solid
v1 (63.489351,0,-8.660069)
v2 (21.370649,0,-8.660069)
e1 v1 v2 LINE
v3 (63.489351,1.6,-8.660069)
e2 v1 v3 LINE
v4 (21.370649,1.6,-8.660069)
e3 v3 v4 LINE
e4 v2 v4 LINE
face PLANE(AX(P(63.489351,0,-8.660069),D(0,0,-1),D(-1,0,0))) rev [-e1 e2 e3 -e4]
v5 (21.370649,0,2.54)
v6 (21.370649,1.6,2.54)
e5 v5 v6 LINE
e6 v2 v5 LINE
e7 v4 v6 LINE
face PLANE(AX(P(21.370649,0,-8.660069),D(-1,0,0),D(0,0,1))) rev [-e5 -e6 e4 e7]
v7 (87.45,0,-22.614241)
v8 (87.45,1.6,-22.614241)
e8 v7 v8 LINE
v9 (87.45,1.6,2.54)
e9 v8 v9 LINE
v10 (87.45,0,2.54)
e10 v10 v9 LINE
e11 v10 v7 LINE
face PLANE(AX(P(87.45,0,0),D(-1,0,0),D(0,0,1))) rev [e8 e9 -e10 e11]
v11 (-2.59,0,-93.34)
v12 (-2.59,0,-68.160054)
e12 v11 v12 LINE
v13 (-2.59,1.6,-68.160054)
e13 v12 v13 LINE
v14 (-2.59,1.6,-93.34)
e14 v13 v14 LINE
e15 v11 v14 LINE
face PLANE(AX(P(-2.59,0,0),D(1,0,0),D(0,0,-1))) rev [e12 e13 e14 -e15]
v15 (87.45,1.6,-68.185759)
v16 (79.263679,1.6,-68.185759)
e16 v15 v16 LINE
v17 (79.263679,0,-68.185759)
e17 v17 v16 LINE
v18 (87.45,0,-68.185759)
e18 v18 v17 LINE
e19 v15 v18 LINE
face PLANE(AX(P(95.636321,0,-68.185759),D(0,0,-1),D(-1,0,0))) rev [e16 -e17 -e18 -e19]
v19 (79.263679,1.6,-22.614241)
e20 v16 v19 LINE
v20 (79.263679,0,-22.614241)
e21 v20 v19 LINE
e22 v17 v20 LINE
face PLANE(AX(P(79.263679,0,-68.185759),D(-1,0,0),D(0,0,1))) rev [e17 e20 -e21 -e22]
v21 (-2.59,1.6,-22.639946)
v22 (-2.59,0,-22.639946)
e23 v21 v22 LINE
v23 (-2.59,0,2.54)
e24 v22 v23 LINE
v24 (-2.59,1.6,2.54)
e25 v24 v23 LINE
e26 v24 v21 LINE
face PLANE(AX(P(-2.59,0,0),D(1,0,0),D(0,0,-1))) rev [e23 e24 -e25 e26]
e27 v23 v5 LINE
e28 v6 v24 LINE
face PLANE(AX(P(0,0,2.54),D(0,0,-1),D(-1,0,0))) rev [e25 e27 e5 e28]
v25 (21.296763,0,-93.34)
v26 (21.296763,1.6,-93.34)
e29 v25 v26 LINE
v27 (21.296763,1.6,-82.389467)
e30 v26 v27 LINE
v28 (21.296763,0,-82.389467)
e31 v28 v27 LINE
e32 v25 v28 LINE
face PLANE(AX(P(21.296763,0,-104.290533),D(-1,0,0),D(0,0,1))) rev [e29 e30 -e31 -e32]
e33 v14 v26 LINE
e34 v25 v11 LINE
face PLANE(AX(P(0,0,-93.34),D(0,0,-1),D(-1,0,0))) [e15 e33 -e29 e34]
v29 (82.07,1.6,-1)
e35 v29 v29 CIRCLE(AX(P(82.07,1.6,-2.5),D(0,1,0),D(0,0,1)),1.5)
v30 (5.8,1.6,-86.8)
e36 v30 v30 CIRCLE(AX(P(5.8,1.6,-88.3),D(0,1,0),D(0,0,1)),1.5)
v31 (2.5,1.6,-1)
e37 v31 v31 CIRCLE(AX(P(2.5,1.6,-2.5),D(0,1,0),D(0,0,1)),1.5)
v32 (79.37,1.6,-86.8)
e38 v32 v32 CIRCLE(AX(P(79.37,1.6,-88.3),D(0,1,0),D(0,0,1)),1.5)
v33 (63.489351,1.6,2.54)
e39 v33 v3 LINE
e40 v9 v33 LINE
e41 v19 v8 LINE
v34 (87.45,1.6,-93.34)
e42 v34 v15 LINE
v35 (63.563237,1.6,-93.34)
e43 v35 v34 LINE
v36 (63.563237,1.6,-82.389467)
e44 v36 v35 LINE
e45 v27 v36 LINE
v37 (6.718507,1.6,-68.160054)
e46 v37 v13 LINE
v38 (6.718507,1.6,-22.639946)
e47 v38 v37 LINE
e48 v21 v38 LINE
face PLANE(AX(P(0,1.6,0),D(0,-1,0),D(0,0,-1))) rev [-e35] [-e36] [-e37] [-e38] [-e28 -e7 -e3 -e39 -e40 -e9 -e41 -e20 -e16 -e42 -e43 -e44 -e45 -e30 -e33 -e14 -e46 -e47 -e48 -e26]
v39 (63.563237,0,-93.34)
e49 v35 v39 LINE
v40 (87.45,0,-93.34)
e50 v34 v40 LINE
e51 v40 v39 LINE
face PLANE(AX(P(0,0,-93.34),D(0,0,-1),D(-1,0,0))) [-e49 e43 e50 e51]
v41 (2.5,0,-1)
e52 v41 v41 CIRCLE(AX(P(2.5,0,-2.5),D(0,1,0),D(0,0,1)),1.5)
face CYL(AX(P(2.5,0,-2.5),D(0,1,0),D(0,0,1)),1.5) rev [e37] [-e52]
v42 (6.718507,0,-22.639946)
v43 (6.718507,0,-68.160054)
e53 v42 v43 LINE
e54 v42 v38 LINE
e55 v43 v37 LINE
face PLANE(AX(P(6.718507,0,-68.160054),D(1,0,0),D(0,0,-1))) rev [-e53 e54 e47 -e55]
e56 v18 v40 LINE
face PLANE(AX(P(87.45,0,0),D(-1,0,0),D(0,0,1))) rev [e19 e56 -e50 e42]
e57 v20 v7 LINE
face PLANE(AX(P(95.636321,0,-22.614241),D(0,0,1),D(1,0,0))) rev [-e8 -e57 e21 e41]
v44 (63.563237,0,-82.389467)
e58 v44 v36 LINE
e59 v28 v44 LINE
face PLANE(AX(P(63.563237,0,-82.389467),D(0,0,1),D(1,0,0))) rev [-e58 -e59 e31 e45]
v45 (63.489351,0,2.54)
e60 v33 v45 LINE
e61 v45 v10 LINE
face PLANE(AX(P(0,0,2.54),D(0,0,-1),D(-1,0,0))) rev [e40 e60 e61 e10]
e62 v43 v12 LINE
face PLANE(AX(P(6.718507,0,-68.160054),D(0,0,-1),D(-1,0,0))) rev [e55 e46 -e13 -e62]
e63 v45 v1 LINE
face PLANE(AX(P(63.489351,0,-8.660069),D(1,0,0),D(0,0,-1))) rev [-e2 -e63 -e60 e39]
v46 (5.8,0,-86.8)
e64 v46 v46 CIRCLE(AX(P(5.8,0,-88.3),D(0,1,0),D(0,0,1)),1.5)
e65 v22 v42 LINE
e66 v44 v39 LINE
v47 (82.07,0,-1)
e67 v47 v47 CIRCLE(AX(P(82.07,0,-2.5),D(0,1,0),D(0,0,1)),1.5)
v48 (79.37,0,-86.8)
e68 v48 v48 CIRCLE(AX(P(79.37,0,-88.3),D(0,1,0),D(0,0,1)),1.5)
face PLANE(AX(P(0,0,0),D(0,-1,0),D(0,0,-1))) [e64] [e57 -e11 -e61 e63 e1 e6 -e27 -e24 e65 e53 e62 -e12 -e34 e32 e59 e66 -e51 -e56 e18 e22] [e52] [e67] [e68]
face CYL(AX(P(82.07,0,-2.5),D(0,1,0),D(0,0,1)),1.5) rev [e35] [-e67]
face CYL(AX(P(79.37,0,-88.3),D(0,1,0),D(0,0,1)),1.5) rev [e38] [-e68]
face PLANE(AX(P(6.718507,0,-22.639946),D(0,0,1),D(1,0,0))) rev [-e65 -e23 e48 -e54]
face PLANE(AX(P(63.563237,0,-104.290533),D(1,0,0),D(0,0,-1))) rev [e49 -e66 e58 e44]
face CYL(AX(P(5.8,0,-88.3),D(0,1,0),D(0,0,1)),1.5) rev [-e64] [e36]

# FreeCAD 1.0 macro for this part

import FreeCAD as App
import Part
import Sketcher
from FreeCAD import Vector


def add_polygon(sketch, points):
    """Adds a closed chain of lines whose ends are joined by coincident constraints."""
    first, n = sketch.GeometryCount, len(points)
    for a, b in zip(points, points[1:] + points[:1]):
        sketch.addGeometry(Part.LineSegment(App.Vector(*a, 0), App.Vector(*b, 0)), False)
    for i in range(n):
        sketch.addConstraint(Sketcher.Constraint("Coincident", first + i, 2, first + (i + 1) % n, 1))

doc = App.newDocument("Part")
body = doc.addObject("PartDesign::Body", "Body")

sketch1 = body.newObject("Sketcher::SketchObject", "Sketch")
sketch1.AttachmentSupport = (doc.getObject("XZ_Plane"), [""])
sketch1.MapMode = "FlatFace"
add_polygon(sketch1, [(0, -90.8), (0, 0), (84.57, 0), (84.57, -90.8)])
sketch1.addConstraint([
    Sketcher.Constraint("Vertical", 0),
    Sketcher.Constraint("Horizontal", 1),
    Sketcher.Constraint("Vertical", 2),
    Sketcher.Constraint("Horizontal", 3),
    Sketcher.Constraint("Coincident", 0, 2, -1, 1),
    Sketcher.Constraint("DistanceY", 0, 1, 0, 2, 90.8),
    Sketcher.Constraint("DistanceX", 1, 1, 1, 2, 84.57),
])
pad1 = body.newObject("PartDesign::Pad", "Pad")
pad1.Profile = sketch1
pad1.Length = 1.6
pad1.Reversed = True

sketch2 = body.newObject("Sketcher::SketchObject", "Sketch001")
sketch2.AttachmentSupport = (doc.getObject("XZ_Plane"), [""])
sketch2.MapMode = "FlatFace"
sketch2.AttachmentOffset = App.Placement(Vector(0, 0, -1.6), App.Rotation())
sketch2.addGeometry([
    Part.Circle(Vector(2.5, -2.5, 0), Vector(0, 0, 1), 1.5),
    Part.Circle(Vector(82.07, -2.5, 0), Vector(0, 0, 1), 1.5),
    Part.Circle(Vector(5.8, -88.3, 0), Vector(0, 0, 1), 1.5),
    Part.Circle(Vector(79.37, -88.3, 0), Vector(0, 0, 1), 1.5),
], False)
sketch2.addConstraint([
    Sketcher.Constraint("Equal", 0, 1),
    Sketcher.Constraint("Equal", 1, 2),
    Sketcher.Constraint("Equal", 2, 3),
    Sketcher.Constraint("Horizontal", 0, 3, 1, 3),
    Sketcher.Constraint("Horizontal", 2, 3, 3, 3),
    Sketcher.Constraint("Diameter", 0, 3.0),
    Sketcher.Constraint("DistanceX", -1, 1, 0, 3, 2.5),
    Sketcher.Constraint("DistanceY", 0, 3, -1, 1, 2.5),
    Sketcher.Constraint("DistanceX", -1, 1, 2, 3, 5.8),
    Sketcher.Constraint("DistanceY", 2, 3, -1, 1, 88.3),
    Sketcher.Constraint("DistanceX", 3, 3, 1, 3, 2.7),
    Sketcher.Constraint("DistanceX", -1, 1, 1, 3, 82.07),
])
pocket1 = body.newObject("PartDesign::Pocket", "Pocket")
pocket1.Profile = sketch2
pocket1.Type = "ThroughAll"
pocket1.Reversed = True

sketch3 = body.newObject("Sketcher::SketchObject", "Sketch002")
sketch3.AttachmentSupport = (doc.getObject("YZ_Plane"), [""])
sketch3.MapMode = "FlatFace"
sketch3.AttachmentOffset = App.Placement(Vector(0, 0, 84.57), App.Rotation())
add_polygon(sketch3, [(1.6, 0), (0, 0), (0, -90.8), (1.6, -90.8)])
sketch3.addConstraint([
    Sketcher.Constraint("Horizontal", 0),
    Sketcher.Constraint("Vertical", 1),
    Sketcher.Constraint("Horizontal", 2),
    Sketcher.Constraint("Vertical", 3),
    Sketcher.Constraint("Coincident", 0, 2, -1, 1),
    Sketcher.Constraint("DistanceX", 0, 2, 0, 1, 1.6),
    Sketcher.Constraint("DistanceY", 1, 2, 1, 1, 90.8),
])
pad2 = body.newObject("PartDesign::Pad", "Pad001")
pad2.Profile = sketch3
pad2.Length = 2.88

sketch4 = body.newObject("Sketcher::SketchObject", "Sketch003")
sketch4.AttachmentSupport = (doc.getObject("YZ_Plane"), [""])
sketch4.MapMode = "FlatFace"
add_polygon(sketch4, [(1.6, -90.8), (0, -90.8), (0, 0), (1.6, 0)])
sketch4.addConstraint([
    Sketcher.Constraint("Horizontal", 0),
    Sketcher.Constraint("Vertical", 1),
    Sketcher.Constraint("Horizontal", 2),
    Sketcher.Constraint("Vertical", 3),
    Sketcher.Constraint("Coincident", 1, 2, -1, 1),
    Sketcher.Constraint("DistanceX", 0, 2, 0, 1, 1.6),
    Sketcher.Constraint("DistanceY", 1, 1, 1, 2, 90.8),
])
pad3 = body.newObject("PartDesign::Pad", "Pad002")
pad3.Profile = sketch4
pad3.Length = 2.59
pad3.Reversed = True

sketch5 = body.newObject("Sketcher::SketchObject", "Sketch004")
sketch5.AttachmentSupport = (doc.getObject("XY_Plane"), [""])
sketch5.MapMode = "FlatFace"
sketch5.AttachmentOffset = App.Placement(Vector(0, 0, -90.8), App.Rotation())
add_polygon(sketch5, [(87.45, 1.6), (87.45, 0), (-2.59, 0), (-2.59, 1.6)])
sketch5.addConstraint([
    Sketcher.Constraint("Vertical", 0),
    Sketcher.Constraint("Horizontal", 1),
    Sketcher.Constraint("Vertical", 2),
    Sketcher.Constraint("Horizontal", 3),
    Sketcher.Constraint("PointOnObject", 0, 2, -1),
    Sketcher.Constraint("DistanceY", 0, 2, 0, 1, 1.6),
    Sketcher.Constraint("DistanceX", 1, 2, 1, 1, 90.04),
    Sketcher.Constraint("DistanceX", -1, 1, 0, 2, 87.45),
])
pad4 = body.newObject("PartDesign::Pad", "Pad003")
pad4.Profile = sketch5
pad4.Length = 2.54
pad4.Reversed = True

sketch6 = body.newObject("Sketcher::SketchObject", "Sketch005")
sketch6.AttachmentSupport = (doc.getObject("XY_Plane"), [""])
sketch6.MapMode = "FlatFace"
add_polygon(sketch6, [(-2.59, 1.6), (-2.59, 0), (87.45, 0), (87.45, 1.6)])
sketch6.addConstraint([
    Sketcher.Constraint("Vertical", 0),
    Sketcher.Constraint("Horizontal", 1),
    Sketcher.Constraint("Vertical", 2),
    Sketcher.Constraint("Horizontal", 3),
    Sketcher.Constraint("PointOnObject", 0, 2, -1),
    Sketcher.Constraint("DistanceY", 0, 2, 0, 1, 1.6),
    Sketcher.Constraint("DistanceX", 1, 1, 1, 2, 90.04),
    Sketcher.Constraint("DistanceX", 0, 2, -1, 1, 2.59),
])
pad5 = body.newObject("PartDesign::Pad", "Pad004")
pad5.Profile = sketch6
pad5.Length = 2.54

sketch7 = body.newObject("Sketcher::SketchObject", "Sketch006")
sketch7.AttachmentSupport = (doc.getObject("XZ_Plane"), [""])
sketch7.MapMode = "FlatFace"
sketch7.AttachmentOffset = App.Placement(Vector(0, 0, -1.6), App.Rotation())
add_polygon(sketch7, [(79.263679, -68.185759), (79.263679, -22.614241), (95.636321, -22.614241), (95.636321, -68.185759)])
add_polygon(sketch7, [(21.296763, -104.290533), (21.296763, -82.389467), (63.563237, -82.389467), (63.563237, -104.290533)])
add_polygon(sketch7, [(-11.898507, -68.160054), (-11.898507, -22.639946), (6.718507, -22.639946), (6.718507, -68.160054)])
add_polygon(sketch7, [(21.370649, -8.660069), (21.370649, 13.740069), (63.489351, 13.740069), (63.489351, -8.660069)])
sketch7.addConstraint([
    Sketcher.Constraint("Vertical", 0),
    Sketcher.Constraint("Horizontal", 1),
    Sketcher.Constraint("Vertical", 2),
    Sketcher.Constraint("Horizontal", 3),
    Sketcher.Constraint("Vertical", 4),
    Sketcher.Constraint("Horizontal", 5),
    Sketcher.Constraint("Vertical", 6),
    Sketcher.Constraint("Horizontal", 7),
    Sketcher.Constraint("Vertical", 8),
    Sketcher.Constraint("Horizontal", 9),
    Sketcher.Constraint("Vertical", 10),
    Sketcher.Constraint("Horizontal", 11),
    Sketcher.Constraint("Vertical", 12),
    Sketcher.Constraint("Horizontal", 13),
    Sketcher.Constraint("Vertical", 14),
    Sketcher.Constraint("Horizontal", 15),
    Sketcher.Constraint("DistanceY", 8, 1, 8, 2, 45.520108),
    Sketcher.Constraint("DistanceY", 12, 1, 12, 2, 22.400139),
    Sketcher.Constraint("DistanceX", 1, 1, 1, 2, 16.372643),
    Sketcher.Constraint("DistanceX", 5, 1, 5, 2, 42.266473),
    Sketcher.Constraint("DistanceX", 9, 1, 9, 2, 18.617014),
    Sketcher.Constraint("DistanceX", 13, 1, 13, 2, 42.118702),
    Sketcher.Constraint("DistanceY", 0, 1, 0, 2, 45.571517),
    Sketcher.Constraint("DistanceY", 4, 1, 4, 2, 21.901066),
    Sketcher.Constraint("DistanceX", -1, 1, 0, 2, 79.263679),
    Sketcher.Constraint("DistanceY", 0, 2, -1, 1, 22.614241),
    Sketcher.Constraint("DistanceX", -1, 1, 12, 2, 21.370649),
    Sketcher.Constraint("DistanceY", -1, 1, 12, 2, 13.740069),
    Sketcher.Constraint("DistanceY", 4, 2, 3, 2, 14.203709),
    Sketcher.Constraint("DistanceX", 4, 2, 2, 2, 74.339558),
    Sketcher.Constraint("DistanceX", 8, 2, 4, 2, 33.19527),
    Sketcher.Constraint("DistanceY", 4, 2, 8, 2, 59.749521),
])
pocket2 = body.newObject("PartDesign::Pocket", "Pocket001")
pocket2.Profile = sketch7
pocket2.Type = "ThroughAll"
pocket2.Reversed = True

doc.recompute()
